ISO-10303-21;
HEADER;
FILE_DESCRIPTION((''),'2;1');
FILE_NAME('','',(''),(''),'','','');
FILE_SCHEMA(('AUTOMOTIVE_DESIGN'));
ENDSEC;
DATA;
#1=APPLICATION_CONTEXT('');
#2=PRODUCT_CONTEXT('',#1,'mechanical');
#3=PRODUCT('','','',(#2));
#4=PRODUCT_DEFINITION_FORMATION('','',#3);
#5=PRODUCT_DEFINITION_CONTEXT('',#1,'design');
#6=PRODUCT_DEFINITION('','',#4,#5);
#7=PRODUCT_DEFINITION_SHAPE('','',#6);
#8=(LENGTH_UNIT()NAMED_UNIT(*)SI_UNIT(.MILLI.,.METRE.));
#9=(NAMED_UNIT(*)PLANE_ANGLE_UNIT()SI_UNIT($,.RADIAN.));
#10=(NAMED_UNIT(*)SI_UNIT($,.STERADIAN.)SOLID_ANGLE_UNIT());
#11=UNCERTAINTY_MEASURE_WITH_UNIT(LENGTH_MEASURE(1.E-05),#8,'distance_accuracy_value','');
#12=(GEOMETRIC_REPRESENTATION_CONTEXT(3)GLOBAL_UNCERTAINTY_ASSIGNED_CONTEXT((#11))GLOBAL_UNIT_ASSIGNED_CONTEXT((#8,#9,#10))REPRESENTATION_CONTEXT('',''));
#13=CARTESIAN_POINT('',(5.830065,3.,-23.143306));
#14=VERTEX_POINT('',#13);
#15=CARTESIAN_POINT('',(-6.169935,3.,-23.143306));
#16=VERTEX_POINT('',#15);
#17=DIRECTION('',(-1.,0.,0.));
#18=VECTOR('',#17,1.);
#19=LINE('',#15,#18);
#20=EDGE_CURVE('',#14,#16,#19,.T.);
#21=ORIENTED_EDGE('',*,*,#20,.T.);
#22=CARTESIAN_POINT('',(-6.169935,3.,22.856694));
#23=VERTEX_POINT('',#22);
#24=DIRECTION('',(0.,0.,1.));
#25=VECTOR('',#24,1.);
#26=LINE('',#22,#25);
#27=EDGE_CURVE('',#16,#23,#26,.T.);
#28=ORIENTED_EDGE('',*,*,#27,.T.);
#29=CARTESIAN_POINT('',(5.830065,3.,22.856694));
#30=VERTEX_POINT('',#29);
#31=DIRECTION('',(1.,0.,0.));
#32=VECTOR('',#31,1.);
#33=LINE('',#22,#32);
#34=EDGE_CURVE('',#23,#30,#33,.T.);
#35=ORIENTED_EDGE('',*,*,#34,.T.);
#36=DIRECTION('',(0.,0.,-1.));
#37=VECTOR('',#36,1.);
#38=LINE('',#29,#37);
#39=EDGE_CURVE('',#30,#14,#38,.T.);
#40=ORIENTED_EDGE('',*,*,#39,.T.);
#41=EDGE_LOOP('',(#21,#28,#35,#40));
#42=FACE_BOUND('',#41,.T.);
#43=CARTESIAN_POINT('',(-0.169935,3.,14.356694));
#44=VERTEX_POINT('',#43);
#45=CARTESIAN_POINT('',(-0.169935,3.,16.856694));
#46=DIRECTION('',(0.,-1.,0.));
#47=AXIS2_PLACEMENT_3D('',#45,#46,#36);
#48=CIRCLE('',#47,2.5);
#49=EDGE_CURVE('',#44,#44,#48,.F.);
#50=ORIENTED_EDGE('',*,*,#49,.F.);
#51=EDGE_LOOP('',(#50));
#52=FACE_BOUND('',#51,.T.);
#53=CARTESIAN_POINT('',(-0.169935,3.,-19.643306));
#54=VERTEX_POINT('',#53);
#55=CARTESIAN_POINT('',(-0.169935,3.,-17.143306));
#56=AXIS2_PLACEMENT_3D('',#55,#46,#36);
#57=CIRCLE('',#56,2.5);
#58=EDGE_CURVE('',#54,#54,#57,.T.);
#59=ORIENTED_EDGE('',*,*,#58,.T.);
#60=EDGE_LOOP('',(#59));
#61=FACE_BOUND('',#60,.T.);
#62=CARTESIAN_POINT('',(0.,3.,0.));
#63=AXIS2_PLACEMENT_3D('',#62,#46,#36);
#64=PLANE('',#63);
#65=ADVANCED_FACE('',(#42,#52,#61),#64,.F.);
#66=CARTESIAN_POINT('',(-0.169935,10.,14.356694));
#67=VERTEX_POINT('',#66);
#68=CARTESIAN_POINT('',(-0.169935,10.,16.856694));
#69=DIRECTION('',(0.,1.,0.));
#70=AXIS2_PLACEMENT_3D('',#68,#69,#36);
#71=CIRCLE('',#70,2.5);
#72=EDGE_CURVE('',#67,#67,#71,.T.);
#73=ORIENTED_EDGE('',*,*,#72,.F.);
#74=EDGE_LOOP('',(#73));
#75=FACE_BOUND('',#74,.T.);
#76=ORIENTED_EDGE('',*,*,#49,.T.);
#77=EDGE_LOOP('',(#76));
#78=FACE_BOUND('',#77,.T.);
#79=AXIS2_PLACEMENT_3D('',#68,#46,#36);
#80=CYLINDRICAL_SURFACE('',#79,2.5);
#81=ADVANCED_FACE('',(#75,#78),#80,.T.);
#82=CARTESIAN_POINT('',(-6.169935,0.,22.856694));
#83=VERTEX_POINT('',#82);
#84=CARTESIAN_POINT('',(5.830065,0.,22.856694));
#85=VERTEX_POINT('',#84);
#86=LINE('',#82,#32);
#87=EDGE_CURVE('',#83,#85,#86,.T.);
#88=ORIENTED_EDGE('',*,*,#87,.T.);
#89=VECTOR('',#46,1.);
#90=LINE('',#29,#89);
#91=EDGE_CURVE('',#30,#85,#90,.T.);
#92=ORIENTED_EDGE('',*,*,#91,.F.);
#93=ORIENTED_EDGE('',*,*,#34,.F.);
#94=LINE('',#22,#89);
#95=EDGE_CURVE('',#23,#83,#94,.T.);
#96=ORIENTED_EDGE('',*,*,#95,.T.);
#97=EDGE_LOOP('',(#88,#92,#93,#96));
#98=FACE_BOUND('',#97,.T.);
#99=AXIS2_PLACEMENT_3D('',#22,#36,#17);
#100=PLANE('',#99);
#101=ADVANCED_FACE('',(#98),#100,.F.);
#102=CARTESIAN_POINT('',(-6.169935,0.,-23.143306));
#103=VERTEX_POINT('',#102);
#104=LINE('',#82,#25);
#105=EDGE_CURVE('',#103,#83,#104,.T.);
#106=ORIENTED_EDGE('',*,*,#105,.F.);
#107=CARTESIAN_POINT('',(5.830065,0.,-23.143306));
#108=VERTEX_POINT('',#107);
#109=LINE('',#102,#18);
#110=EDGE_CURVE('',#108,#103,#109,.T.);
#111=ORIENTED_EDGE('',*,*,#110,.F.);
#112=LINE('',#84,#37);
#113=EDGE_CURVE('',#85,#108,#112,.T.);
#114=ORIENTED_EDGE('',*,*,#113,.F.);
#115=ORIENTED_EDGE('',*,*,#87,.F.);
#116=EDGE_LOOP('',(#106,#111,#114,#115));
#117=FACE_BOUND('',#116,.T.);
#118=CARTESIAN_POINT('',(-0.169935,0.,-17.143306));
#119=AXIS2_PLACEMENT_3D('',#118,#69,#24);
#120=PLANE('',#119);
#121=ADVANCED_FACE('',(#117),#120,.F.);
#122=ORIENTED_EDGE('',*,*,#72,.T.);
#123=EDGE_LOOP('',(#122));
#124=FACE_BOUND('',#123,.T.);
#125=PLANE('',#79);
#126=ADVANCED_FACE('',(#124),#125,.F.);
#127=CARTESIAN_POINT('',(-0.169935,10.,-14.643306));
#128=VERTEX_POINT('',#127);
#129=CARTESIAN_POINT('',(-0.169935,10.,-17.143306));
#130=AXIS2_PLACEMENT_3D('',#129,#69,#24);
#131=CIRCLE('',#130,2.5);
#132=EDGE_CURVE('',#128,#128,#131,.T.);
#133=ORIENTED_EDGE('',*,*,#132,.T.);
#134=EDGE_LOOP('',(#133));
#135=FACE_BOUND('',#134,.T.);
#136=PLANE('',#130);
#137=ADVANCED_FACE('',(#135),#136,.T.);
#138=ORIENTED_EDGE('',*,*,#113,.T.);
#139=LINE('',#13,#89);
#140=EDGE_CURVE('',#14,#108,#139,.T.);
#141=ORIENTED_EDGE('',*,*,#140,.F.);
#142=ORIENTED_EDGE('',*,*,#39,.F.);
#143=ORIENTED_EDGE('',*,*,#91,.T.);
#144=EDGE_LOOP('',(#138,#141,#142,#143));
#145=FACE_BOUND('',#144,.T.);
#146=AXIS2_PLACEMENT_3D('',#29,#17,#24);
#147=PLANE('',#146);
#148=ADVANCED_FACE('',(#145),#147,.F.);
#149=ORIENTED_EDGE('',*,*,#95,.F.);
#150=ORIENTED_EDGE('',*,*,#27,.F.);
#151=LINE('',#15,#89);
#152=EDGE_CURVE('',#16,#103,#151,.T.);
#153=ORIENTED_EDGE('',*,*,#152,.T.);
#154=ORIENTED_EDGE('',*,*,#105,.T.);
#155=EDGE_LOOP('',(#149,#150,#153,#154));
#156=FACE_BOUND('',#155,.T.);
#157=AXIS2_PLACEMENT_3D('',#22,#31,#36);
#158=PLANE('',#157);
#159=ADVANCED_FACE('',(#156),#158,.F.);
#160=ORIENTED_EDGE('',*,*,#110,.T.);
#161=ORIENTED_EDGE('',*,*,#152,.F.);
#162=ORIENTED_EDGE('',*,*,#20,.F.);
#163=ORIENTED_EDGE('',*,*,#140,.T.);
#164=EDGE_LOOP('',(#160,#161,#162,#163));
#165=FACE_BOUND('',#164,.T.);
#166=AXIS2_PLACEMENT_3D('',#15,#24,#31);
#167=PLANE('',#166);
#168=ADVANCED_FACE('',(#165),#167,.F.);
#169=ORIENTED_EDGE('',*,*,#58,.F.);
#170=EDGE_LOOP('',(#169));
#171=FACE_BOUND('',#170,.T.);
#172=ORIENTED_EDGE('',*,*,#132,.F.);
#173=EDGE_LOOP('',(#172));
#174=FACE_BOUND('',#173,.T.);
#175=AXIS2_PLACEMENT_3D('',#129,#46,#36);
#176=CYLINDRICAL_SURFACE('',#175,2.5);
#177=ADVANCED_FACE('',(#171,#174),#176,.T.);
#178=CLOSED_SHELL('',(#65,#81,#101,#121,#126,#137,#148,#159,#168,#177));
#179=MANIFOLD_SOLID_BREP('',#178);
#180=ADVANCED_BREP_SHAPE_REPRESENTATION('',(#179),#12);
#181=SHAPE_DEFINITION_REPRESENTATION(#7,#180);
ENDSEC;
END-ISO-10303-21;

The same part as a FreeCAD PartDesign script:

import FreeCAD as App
import Part
import Sketcher

doc = App.newDocument("Part")
body = doc.addObject("PartDesign::Body", "Body")

# Sketch on XZ plane
sketch1 = body.newObject("Sketcher::SketchObject", "Sketch")
sketch1.AttachmentSupport = (doc.getObject("XZ_Plane"), [""])
sketch1.MapMode = "FlatFace"
sketch1.addGeometry(Part.Circle(App.Vector(-0.2, -17.1, 0), App.Vector(0, 0, 1), 2.5), False)
sketch1.addConstraint([
    Sketcher.Constraint("Diameter", 0, 5.0),
    Sketcher.Constraint("DistanceX", 0, 3, -1, 1, 0.169935),
    Sketcher.Constraint("DistanceY", 0, 3, -1, 1, 17.143306),
])
pad1 = body.newObject("PartDesign::Pad", "Pad")
pad1.Profile = sketch1
pad1.Length = 10
pad1.Reversed = True
body2 = doc.addObject("PartDesign::Body", "Body001")

# Sketch on XZ plane
sketch2 = body2.newObject("Sketcher::SketchObject", "Sketch001")
sketch2.AttachmentSupport = (doc.getObject("XZ_Plane001"), [""])
sketch2.MapMode = "FlatFace"
sketch2.addGeometry(Part.Circle(App.Vector(-0.2, 16.9, 0), App.Vector(0, 0, 1), 2.5), False)
sketch2.addConstraint([
    Sketcher.Constraint("Diameter", 0, 5.0),
    Sketcher.Constraint("DistanceX", 0, 3, -1, 1, 0.169935),
    Sketcher.Constraint("DistanceY", -1, 1, 0, 3, 16.856694),
])
pad2 = body2.newObject("PartDesign::Pad", "Pad001")
pad2.Profile = sketch2
pad2.Length = 10
pad2.Reversed = True
body.AllowCompound = True
doc.recompute()

boolean = body.newObject("PartDesign::Boolean", "Boolean")
boolean.Type = "Fuse"
boolean.addObjects([body2])

# Sketch on XZ plane
sketch3 = body.newObject("Sketcher::SketchObject", "Sketch002")
sketch3.AttachmentSupport = (doc.getObject("XZ_Plane"), [""])
sketch3.MapMode = "FlatFace"
sketch3.addGeometry([
    Part.LineSegment(App.Vector(-6, -23, 0), App.Vector(-6, 23, 0)),
    Part.LineSegment(App.Vector(-6, 23, 0), App.Vector(6, 23, 0)),
    Part.LineSegment(App.Vector(6, 23, 0), App.Vector(6, -23, 0)),
    Part.LineSegment(App.Vector(6, -23, 0), App.Vector(-6, -23, 0)),
], False)
sketch3.addConstraint([
    Sketcher.Constraint("Coincident", 0, 2, 1, 1),
    Sketcher.Constraint("Coincident", 1, 2, 2, 1),
    Sketcher.Constraint("Coincident", 2, 2, 3, 1),
    Sketcher.Constraint("Coincident", 3, 2, 0, 1),
    Sketcher.Constraint("Vertical", 0),
    Sketcher.Constraint("Horizontal", 1),
    Sketcher.Constraint("Vertical", 2),
    Sketcher.Constraint("Horizontal", 3),
    Sketcher.Constraint("DistanceX", 1, 1, 1, 2, 12.0),
    Sketcher.Constraint("DistanceY", 0, 1, 0, 2, 46.0),
    Sketcher.Constraint("DistanceX", 0, 2, -1, 1, 6.169935),
    Sketcher.Constraint("DistanceY", -1, 1, 0, 2, 22.856694),
])
pad3 = body.newObject("PartDesign::Pad", "Pad002")
pad3.Profile = sketch3
pad3.Length = 3
pad3.Reversed = True

doc.recompute()
